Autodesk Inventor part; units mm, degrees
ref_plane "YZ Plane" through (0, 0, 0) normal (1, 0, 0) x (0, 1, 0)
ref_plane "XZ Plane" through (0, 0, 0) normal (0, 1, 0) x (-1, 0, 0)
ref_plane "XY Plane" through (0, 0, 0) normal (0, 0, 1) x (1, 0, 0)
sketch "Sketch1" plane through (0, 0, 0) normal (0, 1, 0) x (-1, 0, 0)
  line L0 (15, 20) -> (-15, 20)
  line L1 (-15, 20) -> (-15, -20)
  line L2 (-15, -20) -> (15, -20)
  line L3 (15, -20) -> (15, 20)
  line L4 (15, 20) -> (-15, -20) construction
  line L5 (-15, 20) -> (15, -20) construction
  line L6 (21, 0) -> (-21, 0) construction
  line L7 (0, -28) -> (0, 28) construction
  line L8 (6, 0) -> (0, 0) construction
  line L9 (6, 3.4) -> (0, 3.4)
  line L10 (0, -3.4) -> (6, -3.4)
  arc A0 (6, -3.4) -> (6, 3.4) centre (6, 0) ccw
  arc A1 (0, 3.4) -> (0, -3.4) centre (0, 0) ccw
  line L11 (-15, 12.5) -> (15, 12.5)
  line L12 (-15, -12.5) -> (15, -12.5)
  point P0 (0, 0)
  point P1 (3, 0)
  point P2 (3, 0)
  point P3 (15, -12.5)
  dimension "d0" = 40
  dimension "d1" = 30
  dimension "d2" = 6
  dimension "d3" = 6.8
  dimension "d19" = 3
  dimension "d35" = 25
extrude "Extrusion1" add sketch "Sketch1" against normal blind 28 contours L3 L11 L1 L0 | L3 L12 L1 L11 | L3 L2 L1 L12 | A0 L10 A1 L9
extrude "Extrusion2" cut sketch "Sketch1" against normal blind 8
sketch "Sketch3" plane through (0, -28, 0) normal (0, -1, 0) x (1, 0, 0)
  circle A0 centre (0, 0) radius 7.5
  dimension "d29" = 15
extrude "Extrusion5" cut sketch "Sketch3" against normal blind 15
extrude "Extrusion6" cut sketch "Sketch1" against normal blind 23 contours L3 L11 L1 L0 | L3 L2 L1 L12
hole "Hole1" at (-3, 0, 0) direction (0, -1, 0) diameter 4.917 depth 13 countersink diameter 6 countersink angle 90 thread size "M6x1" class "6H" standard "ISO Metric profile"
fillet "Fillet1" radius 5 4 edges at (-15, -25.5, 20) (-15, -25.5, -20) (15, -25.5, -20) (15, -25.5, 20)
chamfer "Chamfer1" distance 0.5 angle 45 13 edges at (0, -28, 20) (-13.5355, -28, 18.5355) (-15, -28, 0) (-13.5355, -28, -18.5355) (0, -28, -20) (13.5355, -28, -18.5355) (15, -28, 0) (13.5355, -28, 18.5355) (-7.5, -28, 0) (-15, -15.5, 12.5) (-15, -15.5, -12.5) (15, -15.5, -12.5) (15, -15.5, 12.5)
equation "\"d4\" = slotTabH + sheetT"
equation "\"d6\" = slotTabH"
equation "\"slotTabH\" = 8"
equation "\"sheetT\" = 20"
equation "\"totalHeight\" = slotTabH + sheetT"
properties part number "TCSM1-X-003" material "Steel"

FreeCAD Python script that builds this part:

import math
import FreeCAD as App
import Part
import Sketcher
Q = App.Units.Quantity


def edges_at(feature, points):
    """Names of the edges that pass closest to the given points."""
    edges = feature.Shape.Edges
    near = lambda p: min(range(len(edges)), key=lambda i: edges[i].distToShape(Part.Vertex(*p))[0])
    return sorted({f"Edge{near(p) + 1}" for p in points})

doc = App.newDocument("Part")
body = doc.addObject("PartDesign::Body", "Body")

# Sketch on XZ plane
sketch1 = doc.addObject("Sketcher::SketchObject", "Sketch")
body.addObject(sketch1)
sketch1.AttachmentSupport = (doc.XZ_Plane, [""])
sketch1.MapMode = "FlatFace"
sketch1.addGeometry([
    Part.LineSegment(App.Vector(-15, 20, 0), App.Vector(15, 20, 0)),
    Part.LineSegment(App.Vector(15, 20, 0), App.Vector(15, -20, 0)),
    Part.LineSegment(App.Vector(15, -20, 0), App.Vector(-15, -20, 0)),
    Part.LineSegment(App.Vector(-15, -20, 0), App.Vector(-15, 20, 0)),
], False)
sketch1.addConstraint([
    Sketcher.Constraint("Coincident", 0, 2, 1, 1),
    Sketcher.Constraint("Coincident", 1, 2, 2, 1),
    Sketcher.Constraint("Coincident", 2, 2, 3, 1),
    Sketcher.Constraint("Coincident", 3, 2, 0, 1),
    Sketcher.Constraint("Horizontal", 0),
    Sketcher.Constraint("Vertical", 1),
    Sketcher.Constraint("Horizontal", 2),
    Sketcher.Constraint("Vertical", 3),
    Sketcher.Constraint("Symmetric", 0, 2, 2, 2, -1, 1),
    Sketcher.Constraint("DistanceX", 0, 1, 0, 2, Q("30 mm")),
    Sketcher.Constraint("DistanceY", 1, 2, 1, 1, Q("40 mm")),
])
pad1 = doc.addObject("PartDesign::Pad", "Pad")
body.addObject(pad1)
pad1.Profile = sketch1
pad1.Length = 28

# Sketch on XZ plane
sketch2 = doc.addObject("Sketcher::SketchObject", "Sketch001")
body.addObject(sketch2)
sketch2.AttachmentSupport = (doc.XZ_Plane, [""])
sketch2.MapMode = "FlatFace"
sketch2.addGeometry([
    Part.LineSegment(App.Vector(-15, 20, 0), App.Vector(15, 20, 0)),  # 0
    Part.LineSegment(App.Vector(15, 20, 0), App.Vector(15, -20, 0)),  # 1
    Part.LineSegment(App.Vector(15, -20, 0), App.Vector(-15, -20, 0)),  # 2
    Part.LineSegment(App.Vector(-15, -20, 0), App.Vector(-15, 20, 0)),  # 3
    Part.ArcOfCircle(Part.Circle(App.Vector(-6, 0, 0), App.Vector(0, 0, 1), 3.4), math.radians(90), math.radians(270)),  # 4
    Part.LineSegment(App.Vector(-6, -3.4, 0), App.Vector(0, -3.4, 0)),  # 5
    Part.ArcOfCircle(Part.Circle(App.Vector(0, 0, 0), App.Vector(0, 0, 1), 3.4), math.radians(-90), math.radians(90)),  # 6
    Part.LineSegment(App.Vector(0, 3.4, 0), App.Vector(-6, 3.4, 0)),  # 7
], False)
sketch2.addConstraint([
    Sketcher.Constraint("Coincident", 0, 2, 1, 1),
    Sketcher.Constraint("Coincident", 1, 2, 2, 1),
    Sketcher.Constraint("Coincident", 2, 2, 3, 1),
    Sketcher.Constraint("Coincident", 3, 2, 0, 1),
    Sketcher.Constraint("Tangent", 4, 2, 5, 1),
    Sketcher.Constraint("Tangent", 5, 2, 6, 1),
    Sketcher.Constraint("Tangent", 6, 2, 7, 1),
    Sketcher.Constraint("Tangent", 7, 2, 4, 1),
    Sketcher.Constraint("Horizontal", 0),
    Sketcher.Constraint("Vertical", 1),
    Sketcher.Constraint("Horizontal", 2),
    Sketcher.Constraint("Vertical", 3),
    Sketcher.Constraint("Horizontal", 5),
    Sketcher.Constraint("Horizontal", 7),
    Sketcher.Constraint("Coincident", 6, 3, -1, 1),
    Sketcher.Constraint("Symmetric", 0, 2, 2, 2, -1, 1),
    Sketcher.Constraint("Radius", 4, Q("3.4 mm")),
    Sketcher.Constraint("DistanceX", 0, 1, 0, 2, Q("30 mm")),
    Sketcher.Constraint("DistanceX", 5, 1, 5, 2, Q("6 mm")),
    Sketcher.Constraint("DistanceY", 1, 2, 1, 1, Q("40 mm")),
])
pocket1 = doc.addObject("PartDesign::Pocket", "Pocket")
body.addObject(pocket1)
pocket1.Profile = sketch2
pocket1.Length = 8
pocket1.Reversed = True

# Sketch on XZ plane
sketch3 = doc.addObject("Sketcher::SketchObject", "Sketch002")
body.addObject(sketch3)
sketch3.AttachmentSupport = (doc.XZ_Plane, [""])
sketch3.MapMode = "FlatFace"
sketch3.AttachmentOffset = App.Placement(App.Vector(0, 0, 28), App.Rotation())
sketch3.addGeometry(Part.Circle(App.Vector(0, 0, 0), App.Vector(0, 0, 1), 7.5), False)
sketch3.addConstraint([
    Sketcher.Constraint("Coincident", 0, 3, -1, 1),
    Sketcher.Constraint("Diameter", 0, Q("15 mm")),
])
pocket2 = doc.addObject("PartDesign::Pocket", "Pocket001")
body.addObject(pocket2)
pocket2.Profile = sketch3
pocket2.Length = 15

# Sketch on XZ plane
sketch4 = doc.addObject("Sketcher::SketchObject", "Sketch003")
body.addObject(sketch4)
sketch4.AttachmentSupport = (doc.XZ_Plane, [""])
sketch4.MapMode = "FlatFace"
sketch4.addGeometry([
    Part.LineSegment(App.Vector(-15, 12.5, 0), App.Vector(-15, 20, 0)),  # 0
    Part.LineSegment(App.Vector(-15, 20, 0), App.Vector(15, 20, 0)),  # 1
    Part.LineSegment(App.Vector(15, 20, 0), App.Vector(15, 12.5, 0)),  # 2
    Part.LineSegment(App.Vector(15, 12.5, 0), App.Vector(-15, 12.5, 0)),  # 3
    Part.LineSegment(App.Vector(-15, -20, 0), App.Vector(-15, -12.5, 0)),  # 4
    Part.LineSegment(App.Vector(-15, -12.5, 0), App.Vector(15, -12.5, 0)),  # 5
    Part.LineSegment(App.Vector(15, -12.5, 0), App.Vector(15, -20, 0)),  # 6
    Part.LineSegment(App.Vector(15, -20, 0), App.Vector(-15, -20, 0)),  # 7
], False)
sketch4.addConstraint([
    Sketcher.Constraint("Coincident", 0, 2, 1, 1),
    Sketcher.Constraint("Coincident", 1, 2, 2, 1),
    Sketcher.Constraint("Coincident", 2, 2, 3, 1),
    Sketcher.Constraint("Coincident", 3, 2, 0, 1),
    Sketcher.Constraint("Coincident", 4, 2, 5, 1),
    Sketcher.Constraint("Coincident", 5, 2, 6, 1),
    Sketcher.Constraint("Coincident", 6, 2, 7, 1),
    Sketcher.Constraint("Coincident", 7, 2, 4, 1),
    Sketcher.Constraint("Vertical", 0),
    Sketcher.Constraint("Horizontal", 1),
    Sketcher.Constraint("Vertical", 2),
    Sketcher.Constraint("Horizontal", 3),
    Sketcher.Constraint("Vertical", 4),
    Sketcher.Constraint("Horizontal", 5),
    Sketcher.Constraint("Vertical", 6),
    Sketcher.Constraint("Horizontal", 7),
    Sketcher.Constraint("Symmetric", 2, 2, 4, 2, -1, 1),
    Sketcher.Constraint("Symmetric", 0, 2, 6, 2, -1, 1),
    Sketcher.Constraint("Vertical", 3, 2, 4, 2),
    Sketcher.Constraint("DistanceX", 1, 1, 1, 2, Q("30 mm")),
    Sketcher.Constraint("DistanceY", 4, 2, 3, 2, Q("25 mm")),
    Sketcher.Constraint("DistanceY", 6, 2, 1, 2, Q("40 mm")),
])
pocket3 = doc.addObject("PartDesign::Pocket", "Pocket002")
body.addObject(pocket3)
pocket3.Profile = sketch4
pocket3.Length = 23
pocket3.Reversed = True

# Sketch on XZ plane
sketch5 = doc.addObject("Sketcher::SketchObject", "Sketch004")
body.addObject(sketch5)
sketch5.AttachmentSupport = (doc.XZ_Plane, [""])
sketch5.MapMode = "FlatFace"
sketch5.addGeometry(Part.Circle(App.Vector(-3, 0, 0), App.Vector(0, 0, 1), 2.4585), False)
sketch5.addConstraint([
    Sketcher.Constraint("PointOnObject", 0, 3, -1),
    Sketcher.Constraint("Diameter", 0, Q("4.917 mm")),
    Sketcher.Constraint("DistanceX", 0, 3, -1, 1, Q("3 mm")),
])
doc.recompute()
hole = doc.addObject("PartDesign::Hole", "Hole")
body.addObject(hole)
hole.Profile = sketch5
hole.ThreadType = "None"
hole.Diameter = 4.917
hole.DepthType = "Dimension"
hole.Depth = 13
hole.DrillPoint = "Flat"
hole.HoleCutType = "Countersink"
hole.HoleCutDiameter = 6
hole.HoleCutCountersinkAngle = 90
hole.Reversed = True
doc.recompute()

fillet = doc.addObject("PartDesign::Fillet", "Fillet")
body.addObject(fillet)
fillet.Base = (hole, edges_at(hole, [
    (-15, -25.5, 20),
    (-15, -25.5, -20),
    (15, -25.5, -20),
    (15, -25.5, 20),
]))
fillet.Radius = 5
doc.recompute()

chamfer = doc.addObject("PartDesign::Chamfer", "Chamfer")
body.addObject(chamfer)
chamfer.Base = (fillet, edges_at(fillet, [
    (0, -28, 20),
    (-13.536, -28, 18.535),
    (-15, -28, 0),
    (-13.536, -28, -18.535),
    (0, -28, -20),
    (13.536, -28, -18.535),
    (15, -28, 0),
    (13.536, -28, 18.535),
    (-7.5, -28, 0),
    (-15, -15.5, 12.5),
    (-15, -15.5, -12.5),
    (15, -15.5, -12.5),
    (15, -15.5, 12.5),
]))
chamfer.Size = 0.5

doc.recompute()
